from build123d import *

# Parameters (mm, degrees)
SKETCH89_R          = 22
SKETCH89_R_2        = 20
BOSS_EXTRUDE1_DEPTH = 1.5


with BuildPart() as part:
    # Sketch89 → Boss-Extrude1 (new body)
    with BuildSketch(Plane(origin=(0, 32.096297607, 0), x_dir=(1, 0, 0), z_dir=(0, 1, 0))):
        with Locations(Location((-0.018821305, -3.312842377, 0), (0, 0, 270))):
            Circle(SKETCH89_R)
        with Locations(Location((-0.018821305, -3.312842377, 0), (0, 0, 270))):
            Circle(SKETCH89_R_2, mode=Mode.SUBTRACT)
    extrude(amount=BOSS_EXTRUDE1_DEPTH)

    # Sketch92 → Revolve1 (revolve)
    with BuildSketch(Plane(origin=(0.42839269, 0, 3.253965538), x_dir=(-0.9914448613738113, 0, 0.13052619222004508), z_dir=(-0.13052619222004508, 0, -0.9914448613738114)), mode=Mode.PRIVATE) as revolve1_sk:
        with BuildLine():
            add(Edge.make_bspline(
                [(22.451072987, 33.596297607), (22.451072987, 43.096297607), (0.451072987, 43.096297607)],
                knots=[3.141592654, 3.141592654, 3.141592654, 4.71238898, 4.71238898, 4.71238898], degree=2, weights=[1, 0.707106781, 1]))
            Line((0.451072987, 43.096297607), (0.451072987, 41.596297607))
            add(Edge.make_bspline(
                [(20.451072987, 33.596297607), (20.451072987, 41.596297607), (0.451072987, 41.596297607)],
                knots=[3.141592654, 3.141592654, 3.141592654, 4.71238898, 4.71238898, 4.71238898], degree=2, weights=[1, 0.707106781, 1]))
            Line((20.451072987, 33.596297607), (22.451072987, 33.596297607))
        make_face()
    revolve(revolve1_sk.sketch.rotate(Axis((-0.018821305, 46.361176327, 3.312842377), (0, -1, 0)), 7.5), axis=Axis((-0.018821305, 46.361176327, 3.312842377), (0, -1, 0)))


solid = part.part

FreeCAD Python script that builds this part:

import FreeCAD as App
import Part
import Sketcher

V = App.Vector

doc = App.newDocument("Part")
body = doc.addObject("PartDesign::Body", "Body")

# Sketch on XZ plane
sketch1 = body.newObject("Sketcher::SketchObject", "Sketch")
sketch1.AttachmentSupport = (doc.getObject("XZ_Plane"), [""])
sketch1.MapMode = "FlatFace"
sketch1.AttachmentOffset = App.Placement(V(0, 0, -32.096298), App.Rotation())
sketch1.addGeometry([
    Part.Circle(V(0, 3, 0), V(0, 0, 1), 22),
    Part.Circle(V(0, 3, 0), V(0, 0, 1), 20),
], False)
sketch1.addConstraint([
    Sketcher.Constraint("Coincident", 1, 3, 0, 3),
    Sketcher.Constraint("Diameter", 0, 44.0),
    Sketcher.Constraint("Diameter", 1, 40.0),
    Sketcher.Constraint("DistanceX", 0, 3, -1, 1, 0.018821),
    Sketcher.Constraint("DistanceY", -1, 1, 0, 3, 3.312842),
])
pad1 = body.newObject("PartDesign::Pad", "Pad")
pad1.Profile = sketch1
pad1.Length = 1.5
pad1.Reversed = True

# Sketch on an angled plane
sketch2 = body.newObject("Sketcher::SketchObject", "Sketch001")
sketch2.Placement = App.Placement(V(0.428393, 0, 3.253966), App.Rotation(V(-0.991444861, 0, 0.130526192), V(0, 0.999999999, 0), V(-0.130526192, 0, -0.991444861), "ZXY"))
sketch2.addGeometry([
    Part.BSplineCurve([V(22.451073, 33.596298, 0), V(22.451073, 43.096298, 0), V(0.451073, 43.096298, 0)], [3, 3], [3.141592654, 4.71238898], False, 2, [1, 0.707106781, 1], False),
    Part.LineSegment(V(0.451073, 43.096298, 0), V(0.451073, 41.596298, 0)),
    Part.BSplineCurve([V(20.451073, 33.596298, 0), V(20.451073, 41.596298, 0), V(0.451073, 41.596298, 0)], [3, 3], [3.141592654, 4.71238898], False, 2, [1, 0.707106781, 1], False),
    Part.LineSegment(V(20.451073, 33.596298, 0), V(22.451073, 33.596298, 0)),
], False)
sketch2.addGeometry(Part.LineSegment(V(0.451073, 43.096298, 0), V(0.451073, 33.596298, 0)), True)  # axis
sketch2.addConstraint([
    Sketcher.Constraint("Block", 0),
    Sketcher.Constraint("Block", 2),
    Sketcher.Constraint("Coincident", 0, 2, 1, 1),
    Sketcher.Constraint("Coincident", 1, 2, 2, 2),
    Sketcher.Constraint("Coincident", 2, 1, 3, 1),
    Sketcher.Constraint("Coincident", 3, 2, 0, 1),
    Sketcher.Constraint("Vertical", 4),
    Sketcher.Constraint("Horizontal", 3, 2, 4, 2),
    Sketcher.Constraint("Vertical", 1, 2, 4, 1),
    Sketcher.Constraint("DistanceY", 4, 2, 4, 1, 9.5),
])
revolution = body.newObject("PartDesign::Revolution", "Revolution")
revolution.Profile = sketch2
revolution.ReferenceAxis = (sketch2, ["Axis0"])
revolution.Angle = 360

doc.recompute()
